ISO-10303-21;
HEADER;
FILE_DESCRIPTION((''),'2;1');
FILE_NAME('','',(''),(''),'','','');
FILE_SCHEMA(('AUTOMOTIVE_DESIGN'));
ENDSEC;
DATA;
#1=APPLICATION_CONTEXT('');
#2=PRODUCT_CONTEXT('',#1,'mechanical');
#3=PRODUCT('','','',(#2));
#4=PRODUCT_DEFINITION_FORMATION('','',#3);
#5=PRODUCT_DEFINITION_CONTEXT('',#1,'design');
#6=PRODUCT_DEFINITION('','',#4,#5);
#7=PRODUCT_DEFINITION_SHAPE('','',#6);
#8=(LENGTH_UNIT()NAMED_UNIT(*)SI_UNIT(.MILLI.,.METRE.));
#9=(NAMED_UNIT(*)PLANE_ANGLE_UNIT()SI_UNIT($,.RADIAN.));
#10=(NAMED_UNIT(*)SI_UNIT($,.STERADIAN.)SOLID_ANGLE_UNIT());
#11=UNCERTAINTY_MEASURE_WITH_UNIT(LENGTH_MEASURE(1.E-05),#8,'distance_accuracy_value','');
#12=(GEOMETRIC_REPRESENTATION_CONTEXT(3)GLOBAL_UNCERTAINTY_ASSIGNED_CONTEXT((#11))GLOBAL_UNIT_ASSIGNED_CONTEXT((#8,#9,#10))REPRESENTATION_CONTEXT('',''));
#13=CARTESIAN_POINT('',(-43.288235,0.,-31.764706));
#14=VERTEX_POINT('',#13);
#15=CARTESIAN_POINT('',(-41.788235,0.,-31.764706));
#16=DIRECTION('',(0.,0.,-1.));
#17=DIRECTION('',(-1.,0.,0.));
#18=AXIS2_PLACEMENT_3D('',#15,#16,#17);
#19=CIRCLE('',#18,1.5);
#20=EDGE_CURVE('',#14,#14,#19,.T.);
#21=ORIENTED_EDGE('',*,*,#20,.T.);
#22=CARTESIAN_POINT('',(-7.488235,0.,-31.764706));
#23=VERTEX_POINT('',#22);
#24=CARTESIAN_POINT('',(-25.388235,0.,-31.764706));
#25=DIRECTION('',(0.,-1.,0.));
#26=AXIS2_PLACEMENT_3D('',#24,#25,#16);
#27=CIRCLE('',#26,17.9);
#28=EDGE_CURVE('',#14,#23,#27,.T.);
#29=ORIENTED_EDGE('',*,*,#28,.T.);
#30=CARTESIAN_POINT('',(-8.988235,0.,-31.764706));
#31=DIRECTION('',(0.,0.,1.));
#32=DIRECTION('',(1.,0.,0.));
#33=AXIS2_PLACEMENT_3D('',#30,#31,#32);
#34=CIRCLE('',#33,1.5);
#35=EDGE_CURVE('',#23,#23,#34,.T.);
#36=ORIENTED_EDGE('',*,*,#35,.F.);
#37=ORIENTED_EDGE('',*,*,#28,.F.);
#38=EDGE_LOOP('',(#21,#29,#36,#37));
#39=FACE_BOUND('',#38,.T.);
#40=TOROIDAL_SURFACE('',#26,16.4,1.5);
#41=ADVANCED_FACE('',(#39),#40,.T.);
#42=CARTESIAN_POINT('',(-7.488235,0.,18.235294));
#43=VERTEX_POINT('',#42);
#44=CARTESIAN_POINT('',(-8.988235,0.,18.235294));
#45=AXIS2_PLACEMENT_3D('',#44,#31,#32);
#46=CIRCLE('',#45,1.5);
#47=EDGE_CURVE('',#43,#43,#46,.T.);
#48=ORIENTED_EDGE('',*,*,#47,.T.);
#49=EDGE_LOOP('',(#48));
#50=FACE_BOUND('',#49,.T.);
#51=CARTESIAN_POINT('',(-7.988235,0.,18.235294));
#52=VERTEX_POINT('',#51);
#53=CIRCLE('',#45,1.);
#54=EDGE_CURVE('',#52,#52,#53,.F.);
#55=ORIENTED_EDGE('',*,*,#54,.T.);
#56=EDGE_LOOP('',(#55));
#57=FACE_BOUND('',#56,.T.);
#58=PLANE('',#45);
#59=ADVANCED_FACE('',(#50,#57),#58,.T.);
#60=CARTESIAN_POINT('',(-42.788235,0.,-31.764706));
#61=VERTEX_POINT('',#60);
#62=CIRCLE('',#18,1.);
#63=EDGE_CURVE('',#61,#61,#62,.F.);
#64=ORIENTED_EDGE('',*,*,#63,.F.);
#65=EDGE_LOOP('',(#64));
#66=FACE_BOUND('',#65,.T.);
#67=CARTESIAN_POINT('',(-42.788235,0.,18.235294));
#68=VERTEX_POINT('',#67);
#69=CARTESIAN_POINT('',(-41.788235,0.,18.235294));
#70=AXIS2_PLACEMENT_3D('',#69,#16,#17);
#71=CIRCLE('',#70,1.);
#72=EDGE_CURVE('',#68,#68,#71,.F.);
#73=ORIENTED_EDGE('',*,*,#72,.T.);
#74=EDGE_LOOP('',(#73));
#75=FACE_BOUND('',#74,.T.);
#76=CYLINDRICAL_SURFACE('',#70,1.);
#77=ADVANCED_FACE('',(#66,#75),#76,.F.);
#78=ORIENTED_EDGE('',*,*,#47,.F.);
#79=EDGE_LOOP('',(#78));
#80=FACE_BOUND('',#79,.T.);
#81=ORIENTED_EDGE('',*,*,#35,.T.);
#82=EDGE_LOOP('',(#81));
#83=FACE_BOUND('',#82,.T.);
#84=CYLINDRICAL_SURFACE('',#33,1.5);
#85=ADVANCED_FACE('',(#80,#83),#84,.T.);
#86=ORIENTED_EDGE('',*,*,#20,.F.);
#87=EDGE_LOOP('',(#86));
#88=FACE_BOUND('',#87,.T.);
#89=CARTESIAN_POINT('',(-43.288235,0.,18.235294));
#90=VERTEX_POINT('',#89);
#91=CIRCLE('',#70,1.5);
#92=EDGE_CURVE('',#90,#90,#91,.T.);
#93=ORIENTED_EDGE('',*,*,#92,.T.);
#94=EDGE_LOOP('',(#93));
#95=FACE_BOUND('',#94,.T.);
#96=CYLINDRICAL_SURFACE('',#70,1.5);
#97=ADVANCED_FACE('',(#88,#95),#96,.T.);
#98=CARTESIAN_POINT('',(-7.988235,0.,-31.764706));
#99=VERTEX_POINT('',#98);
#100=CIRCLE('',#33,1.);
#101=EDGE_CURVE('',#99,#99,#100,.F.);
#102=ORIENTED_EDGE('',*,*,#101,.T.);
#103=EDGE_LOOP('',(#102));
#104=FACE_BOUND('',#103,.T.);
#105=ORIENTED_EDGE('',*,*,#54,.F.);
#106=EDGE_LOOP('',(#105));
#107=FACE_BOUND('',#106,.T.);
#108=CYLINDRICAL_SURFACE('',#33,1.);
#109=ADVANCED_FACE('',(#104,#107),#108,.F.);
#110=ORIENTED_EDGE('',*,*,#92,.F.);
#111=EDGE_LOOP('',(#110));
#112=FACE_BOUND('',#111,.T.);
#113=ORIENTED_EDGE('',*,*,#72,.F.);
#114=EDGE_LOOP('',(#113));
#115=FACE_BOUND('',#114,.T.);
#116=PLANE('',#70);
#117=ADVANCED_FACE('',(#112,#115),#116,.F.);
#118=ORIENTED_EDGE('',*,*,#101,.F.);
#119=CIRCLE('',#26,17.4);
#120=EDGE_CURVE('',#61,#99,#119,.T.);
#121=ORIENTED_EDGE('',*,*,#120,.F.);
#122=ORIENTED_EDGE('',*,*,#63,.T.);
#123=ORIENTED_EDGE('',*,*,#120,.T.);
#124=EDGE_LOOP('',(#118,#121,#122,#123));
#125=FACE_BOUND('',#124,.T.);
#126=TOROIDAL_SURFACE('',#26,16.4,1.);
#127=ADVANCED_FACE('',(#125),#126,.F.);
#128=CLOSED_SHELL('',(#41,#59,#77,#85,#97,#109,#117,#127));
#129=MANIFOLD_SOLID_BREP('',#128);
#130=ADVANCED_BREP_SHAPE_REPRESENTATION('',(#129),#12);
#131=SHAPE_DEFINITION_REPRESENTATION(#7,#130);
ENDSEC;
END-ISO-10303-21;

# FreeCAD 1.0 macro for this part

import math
import FreeCAD as App
import Part
import Sketcher
from FreeCAD import Vector

doc = App.newDocument("Part")
body = doc.addObject("PartDesign::Body", "Body")

sketch1 = body.newObject("Sketcher::SketchObject", "Sketch")
sketch1.AttachmentSupport = (doc.getObject("XY_Plane"), [""])
sketch1.MapMode = "FlatFace"
sketch1.AttachmentOffset = App.Placement(Vector(0, 0, 18.235294), App.Rotation())
sketch1.addGeometry([
    Part.Circle(Vector(-41.8, 0, 0), Vector(0, 0, 1), 1.5),
    Part.Circle(Vector(-41.8, 0, 0), Vector(0, 0, 1), 1),
], False)
sketch1.addConstraint([
    Sketcher.Constraint("Coincident", 1, 3, 0, 3),
    Sketcher.Constraint("PointOnObject", 0, 3, -1),
    Sketcher.Constraint("Diameter", 0, 3.0),
    Sketcher.Constraint("Diameter", 1, 2.0),
    Sketcher.Constraint("DistanceX", 0, 3, -1, 1, 41.788235),
])

sketch2 = body.newObject("Sketcher::SketchObject", "Sketch001")
sketch2.AttachmentSupport = (doc.getObject("XZ_Plane"), [""])
sketch2.MapMode = "FlatFace"
sketch2.addGeometry([
    Part.LineSegment(Vector(-42, 18, 0), Vector(-42, -32, 0)),
    Part.ArcOfCircle(Part.Circle(Vector(-25, -32, 0), Vector(0, 0, 1), 16), math.radians(180), math.radians(360)),
    Part.LineSegment(Vector(-9, -32, 0), Vector(-9, 18, 0)),
], False)
sketch2.addConstraint([
    Sketcher.Constraint("Tangent", 0, 2, 1, 1),
    Sketcher.Constraint("Tangent", 1, 2, 2, 1),
    Sketcher.Constraint("Vertical", 0),
    Sketcher.Constraint("Vertical", 2),
    Sketcher.Constraint("Horizontal", 0, 1, 2, 2),
    Sketcher.Constraint("Radius", 1, 16.4),
    Sketcher.Constraint("DistanceY", 0, 2, 0, 1, 50.0),
    Sketcher.Constraint("DistanceX", 1, 3, -1, 1, 25.388235),
    Sketcher.Constraint("DistanceY", 1, 3, -1, 1, 31.764706),
])
doc.recompute()

additivepipe = body.newObject("PartDesign::AdditivePipe", "AdditivePipe")
additivepipe.Profile = sketch1
additivepipe.Spine = (sketch2, ["Edge1", "Edge2", "Edge3"])

doc.recompute()
